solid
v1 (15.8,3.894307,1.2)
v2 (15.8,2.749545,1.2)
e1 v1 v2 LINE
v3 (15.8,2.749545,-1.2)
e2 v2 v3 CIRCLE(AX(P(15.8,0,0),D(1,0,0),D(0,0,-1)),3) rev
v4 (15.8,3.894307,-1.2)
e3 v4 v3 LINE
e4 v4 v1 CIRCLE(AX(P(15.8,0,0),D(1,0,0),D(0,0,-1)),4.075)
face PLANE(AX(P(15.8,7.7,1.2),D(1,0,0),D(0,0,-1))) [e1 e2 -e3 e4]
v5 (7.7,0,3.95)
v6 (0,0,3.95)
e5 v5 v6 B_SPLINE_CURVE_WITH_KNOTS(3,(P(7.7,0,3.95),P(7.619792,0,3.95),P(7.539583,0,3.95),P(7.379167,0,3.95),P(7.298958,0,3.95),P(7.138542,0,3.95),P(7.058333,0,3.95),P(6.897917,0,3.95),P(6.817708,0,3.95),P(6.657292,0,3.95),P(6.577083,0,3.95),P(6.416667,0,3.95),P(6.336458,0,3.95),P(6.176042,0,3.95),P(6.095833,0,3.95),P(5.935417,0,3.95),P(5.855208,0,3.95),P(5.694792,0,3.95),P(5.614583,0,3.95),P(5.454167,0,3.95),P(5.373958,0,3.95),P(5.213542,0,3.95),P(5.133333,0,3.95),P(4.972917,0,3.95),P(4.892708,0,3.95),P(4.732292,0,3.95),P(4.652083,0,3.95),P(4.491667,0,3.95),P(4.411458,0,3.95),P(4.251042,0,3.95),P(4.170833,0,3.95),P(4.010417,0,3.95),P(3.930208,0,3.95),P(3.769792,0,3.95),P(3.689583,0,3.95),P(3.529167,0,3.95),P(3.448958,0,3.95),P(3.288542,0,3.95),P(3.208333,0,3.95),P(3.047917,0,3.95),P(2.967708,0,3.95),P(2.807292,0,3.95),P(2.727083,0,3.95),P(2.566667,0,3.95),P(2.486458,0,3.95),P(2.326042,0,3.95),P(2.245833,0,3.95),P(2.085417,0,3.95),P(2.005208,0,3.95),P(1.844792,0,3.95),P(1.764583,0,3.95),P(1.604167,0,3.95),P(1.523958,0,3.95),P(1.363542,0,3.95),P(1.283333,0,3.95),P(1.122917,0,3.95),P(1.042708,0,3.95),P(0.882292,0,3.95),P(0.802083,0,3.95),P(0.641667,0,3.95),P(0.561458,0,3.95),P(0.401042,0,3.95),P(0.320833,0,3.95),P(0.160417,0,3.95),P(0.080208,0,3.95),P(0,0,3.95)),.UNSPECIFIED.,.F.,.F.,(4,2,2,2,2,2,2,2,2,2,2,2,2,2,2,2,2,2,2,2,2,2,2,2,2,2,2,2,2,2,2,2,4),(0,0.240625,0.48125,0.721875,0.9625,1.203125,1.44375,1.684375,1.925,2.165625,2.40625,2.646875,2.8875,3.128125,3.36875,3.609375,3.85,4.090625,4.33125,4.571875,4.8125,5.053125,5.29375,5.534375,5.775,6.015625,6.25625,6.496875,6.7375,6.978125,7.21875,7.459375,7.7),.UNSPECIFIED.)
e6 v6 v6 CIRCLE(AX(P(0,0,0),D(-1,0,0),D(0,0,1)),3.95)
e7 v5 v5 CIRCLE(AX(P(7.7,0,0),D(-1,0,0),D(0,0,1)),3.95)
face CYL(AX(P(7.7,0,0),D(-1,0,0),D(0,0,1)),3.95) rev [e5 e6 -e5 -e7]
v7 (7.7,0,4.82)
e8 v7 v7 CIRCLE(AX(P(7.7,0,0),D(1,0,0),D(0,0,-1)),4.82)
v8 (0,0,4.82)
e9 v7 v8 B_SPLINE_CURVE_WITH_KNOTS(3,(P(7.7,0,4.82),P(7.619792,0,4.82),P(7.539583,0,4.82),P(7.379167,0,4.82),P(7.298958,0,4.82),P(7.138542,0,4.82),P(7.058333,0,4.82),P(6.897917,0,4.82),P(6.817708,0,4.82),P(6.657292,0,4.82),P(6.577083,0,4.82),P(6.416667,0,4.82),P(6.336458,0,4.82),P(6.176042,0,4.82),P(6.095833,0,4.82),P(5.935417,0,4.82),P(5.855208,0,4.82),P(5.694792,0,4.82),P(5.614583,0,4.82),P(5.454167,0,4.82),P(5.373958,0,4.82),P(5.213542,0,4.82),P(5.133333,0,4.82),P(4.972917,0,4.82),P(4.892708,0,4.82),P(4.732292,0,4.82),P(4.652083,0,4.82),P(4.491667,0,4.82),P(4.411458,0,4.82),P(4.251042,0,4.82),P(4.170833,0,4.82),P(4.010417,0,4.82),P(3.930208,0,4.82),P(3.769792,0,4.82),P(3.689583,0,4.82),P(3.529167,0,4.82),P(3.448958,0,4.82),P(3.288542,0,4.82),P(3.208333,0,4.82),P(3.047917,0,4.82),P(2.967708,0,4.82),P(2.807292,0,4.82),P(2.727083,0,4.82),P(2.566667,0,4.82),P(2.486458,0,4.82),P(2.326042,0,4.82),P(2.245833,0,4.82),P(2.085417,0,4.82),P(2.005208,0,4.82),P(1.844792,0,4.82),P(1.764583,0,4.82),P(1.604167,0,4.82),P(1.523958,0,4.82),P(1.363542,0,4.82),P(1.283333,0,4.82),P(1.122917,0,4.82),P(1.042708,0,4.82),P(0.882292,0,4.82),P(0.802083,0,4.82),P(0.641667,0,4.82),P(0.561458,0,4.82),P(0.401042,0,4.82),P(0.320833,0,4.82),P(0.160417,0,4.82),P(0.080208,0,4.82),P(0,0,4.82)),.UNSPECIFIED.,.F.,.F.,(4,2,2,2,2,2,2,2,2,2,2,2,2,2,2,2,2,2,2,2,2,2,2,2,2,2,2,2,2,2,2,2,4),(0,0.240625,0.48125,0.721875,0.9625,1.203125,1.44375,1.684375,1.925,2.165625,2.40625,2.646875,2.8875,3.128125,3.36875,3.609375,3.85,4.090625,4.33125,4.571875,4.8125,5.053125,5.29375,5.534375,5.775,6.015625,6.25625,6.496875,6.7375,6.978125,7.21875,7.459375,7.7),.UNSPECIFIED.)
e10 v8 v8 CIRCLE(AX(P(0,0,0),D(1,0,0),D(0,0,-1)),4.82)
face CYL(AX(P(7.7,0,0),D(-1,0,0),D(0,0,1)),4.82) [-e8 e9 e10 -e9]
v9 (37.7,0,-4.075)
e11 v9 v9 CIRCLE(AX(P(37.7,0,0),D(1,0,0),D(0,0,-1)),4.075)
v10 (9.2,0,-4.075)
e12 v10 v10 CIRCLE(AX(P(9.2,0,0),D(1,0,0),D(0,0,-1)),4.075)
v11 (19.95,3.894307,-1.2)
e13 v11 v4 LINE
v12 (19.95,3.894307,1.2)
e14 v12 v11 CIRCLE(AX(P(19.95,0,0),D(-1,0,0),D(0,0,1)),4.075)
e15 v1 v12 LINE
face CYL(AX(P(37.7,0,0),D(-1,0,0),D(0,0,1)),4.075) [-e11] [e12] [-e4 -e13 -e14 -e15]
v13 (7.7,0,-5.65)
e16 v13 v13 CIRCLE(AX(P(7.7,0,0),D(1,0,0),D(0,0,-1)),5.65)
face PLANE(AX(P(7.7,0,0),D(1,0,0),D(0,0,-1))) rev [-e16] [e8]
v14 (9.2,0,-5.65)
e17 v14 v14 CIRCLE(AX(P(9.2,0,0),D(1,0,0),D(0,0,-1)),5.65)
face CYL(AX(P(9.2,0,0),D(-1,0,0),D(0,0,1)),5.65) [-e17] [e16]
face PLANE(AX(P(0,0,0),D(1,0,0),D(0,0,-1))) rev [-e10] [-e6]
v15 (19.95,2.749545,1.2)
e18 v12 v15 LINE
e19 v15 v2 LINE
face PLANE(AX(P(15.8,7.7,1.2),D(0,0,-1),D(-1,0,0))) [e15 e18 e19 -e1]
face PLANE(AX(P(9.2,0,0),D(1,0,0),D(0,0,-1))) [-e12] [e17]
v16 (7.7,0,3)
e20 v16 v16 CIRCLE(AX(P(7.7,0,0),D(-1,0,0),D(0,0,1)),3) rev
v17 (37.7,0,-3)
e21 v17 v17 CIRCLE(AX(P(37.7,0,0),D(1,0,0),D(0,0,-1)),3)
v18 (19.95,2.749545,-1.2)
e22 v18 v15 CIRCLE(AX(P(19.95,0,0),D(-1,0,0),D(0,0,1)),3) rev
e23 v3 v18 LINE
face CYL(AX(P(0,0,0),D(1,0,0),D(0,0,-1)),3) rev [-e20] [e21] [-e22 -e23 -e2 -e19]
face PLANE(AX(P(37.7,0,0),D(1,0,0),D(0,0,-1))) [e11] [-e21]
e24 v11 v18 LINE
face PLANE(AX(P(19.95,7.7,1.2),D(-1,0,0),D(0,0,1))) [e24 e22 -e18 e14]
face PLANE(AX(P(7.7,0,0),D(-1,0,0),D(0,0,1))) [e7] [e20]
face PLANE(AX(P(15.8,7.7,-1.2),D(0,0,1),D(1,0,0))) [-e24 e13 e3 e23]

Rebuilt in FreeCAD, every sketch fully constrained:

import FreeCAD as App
import Part
import Sketcher

V = App.Vector
Q = App.Units.Quantity

doc = App.newDocument("Part")
body = doc.addObject("PartDesign::Body", "Body")

# Sketch on YZ plane
sketch1 = doc.addObject("Sketcher::SketchObject", "Sketch")
body.addObject(sketch1)
sketch1.AttachmentSupport = (doc.YZ_Plane, [""])
sketch1.MapMode = "FlatFace"
sketch1.addGeometry(Part.Circle(V(0, 0, 0), V(0, 0, 1), 4.8), False)
sketch1.addConstraint(Sketcher.Constraint("Coincident", 0, 3, -1, 1))
sketch1.addConstraint(Sketcher.Constraint("Diameter", 0, Q("9.64 mm")))
pad1 = doc.addObject("PartDesign::Pad", "Pad")
body.addObject(pad1)
pad1.Profile = sketch1
pad1.Length = 7.7

# Sketch on YZ plane
sketch2 = doc.addObject("Sketcher::SketchObject", "Sketch001")
body.addObject(sketch2)
sketch2.AttachmentSupport = (doc.YZ_Plane, [""])
sketch2.MapMode = "FlatFace"
sketch2.AttachmentOffset = App.Placement(V(0, 0, 7.7), App.Rotation())
sketch2.addGeometry(Part.Circle(V(0, 0, 0), V(0, 0, 1), 6), False)
sketch2.addConstraint(Sketcher.Constraint("Coincident", 0, 3, -1, 1))
sketch2.addConstraint(Sketcher.Constraint("Diameter", 0, Q("11.3 mm")))
pad2 = doc.addObject("PartDesign::Pad", "Pad001")
body.addObject(pad2)
pad2.Profile = sketch2
pad2.Length = 1.5

# Sketch on YZ plane
sketch3 = doc.addObject("Sketcher::SketchObject", "Sketch002")
body.addObject(sketch3)
sketch3.AttachmentSupport = (doc.YZ_Plane, [""])
sketch3.MapMode = "FlatFace"
sketch3.AttachmentOffset = App.Placement(V(0, 0, 9.2), App.Rotation())
sketch3.addGeometry(Part.Circle(V(0, 0, 0), V(0, 0, 1), 4.1), False)
sketch3.addConstraint(Sketcher.Constraint("Coincident", 0, 3, -1, 1))
sketch3.addConstraint(Sketcher.Constraint("Diameter", 0, Q("8.15 mm")))
pad3 = doc.addObject("PartDesign::Pad", "Pad002")
body.addObject(pad3)
pad3.Profile = sketch3
pad3.Length = 28.5

# Sketch on YZ plane
sketch4 = doc.addObject("Sketcher::SketchObject", "Sketch003")
body.addObject(sketch4)
sketch4.AttachmentSupport = (doc.YZ_Plane, [""])
sketch4.MapMode = "FlatFace"
sketch4.AttachmentOffset = App.Placement(V(0, 0, 37.7), App.Rotation())
sketch4.addGeometry(Part.Circle(V(0, 0, 0), V(0, 0, 1), 3), False)
sketch4.addConstraint(Sketcher.Constraint("Coincident", 0, 3, -1, 1))
sketch4.addConstraint(Sketcher.Constraint("Diameter", 0, Q("6 mm")))
pocket1 = doc.addObject("PartDesign::Pocket", "Pocket")
body.addObject(pocket1)
pocket1.Profile = sketch4
pocket1.Type = "ThroughAll"

# Sketch on YZ plane
sketch5 = doc.addObject("Sketcher::SketchObject", "Sketch004")
body.addObject(sketch5)
sketch5.AttachmentSupport = (doc.YZ_Plane, [""])
sketch5.MapMode = "FlatFace"
sketch5.addGeometry(Part.Circle(V(0, 0, 0), V(0, 0, 1), 4), False)
sketch5.addConstraint(Sketcher.Constraint("Coincident", 0, 3, -1, 1))
sketch5.addConstraint(Sketcher.Constraint("Diameter", 0, Q("7.9 mm")))
pocket2 = doc.addObject("PartDesign::Pocket", "Pocket001")
body.addObject(pocket2)
pocket2.Profile = sketch5
pocket2.Length = 7.7
pocket2.Reversed = True

# Sketch on XZ plane
sketch6 = doc.addObject("Sketcher::SketchObject", "Sketch005")
body.addObject(sketch6)
sketch6.AttachmentSupport = (doc.XZ_Plane, [""])
sketch6.MapMode = "FlatFace"
sketch6.addGeometry(Part.LineSegment(V(15.8, -1.2, 0), V(15.8, 1.2, 0)), False)
sketch6.addGeometry(Part.LineSegment(V(15.8, 1.2, 0), V(19.9, 1.2, 0)), False)
sketch6.addGeometry(Part.LineSegment(V(19.9, 1.2, 0), V(19.9, -1.2, 0)), False)
sketch6.addGeometry(Part.LineSegment(V(19.9, -1.2, 0), V(15.8, -1.2, 0)), False)
sketch6.addConstraint(Sketcher.Constraint("Coincident", 0, 2, 1, 1))
sketch6.addConstraint(Sketcher.Constraint("Coincident", 1, 2, 2, 1))
sketch6.addConstraint(Sketcher.Constraint("Coincident", 2, 2, 3, 1))
sketch6.addConstraint(Sketcher.Constraint("Coincident", 3, 2, 0, 1))
sketch6.addConstraint(Sketcher.Constraint("Vertical", 0))
sketch6.addConstraint(Sketcher.Constraint("Horizontal", 1))
sketch6.addConstraint(Sketcher.Constraint("Vertical", 2))
sketch6.addConstraint(Sketcher.Constraint("Horizontal", 3))
sketch6.addConstraint(Sketcher.Constraint("DistanceY", 0, 1, 0, 2, Q("2.4 mm")))
sketch6.addConstraint(Sketcher.Constraint("DistanceX", 1, 1, 1, 2, Q("4.15 mm")))
sketch6.addConstraint(Sketcher.Constraint("DistanceX", -1, 1, 0, 2, Q("15.8 mm")))
sketch6.addConstraint(Sketcher.Constraint("DistanceY", -1, 1, 0, 2, Q("1.2 mm")))
pocket3 = doc.addObject("PartDesign::Pocket", "Pocket002")
body.addObject(pocket3)
pocket3.Profile = sketch6
pocket3.Length = 7.7

doc.recompute()
